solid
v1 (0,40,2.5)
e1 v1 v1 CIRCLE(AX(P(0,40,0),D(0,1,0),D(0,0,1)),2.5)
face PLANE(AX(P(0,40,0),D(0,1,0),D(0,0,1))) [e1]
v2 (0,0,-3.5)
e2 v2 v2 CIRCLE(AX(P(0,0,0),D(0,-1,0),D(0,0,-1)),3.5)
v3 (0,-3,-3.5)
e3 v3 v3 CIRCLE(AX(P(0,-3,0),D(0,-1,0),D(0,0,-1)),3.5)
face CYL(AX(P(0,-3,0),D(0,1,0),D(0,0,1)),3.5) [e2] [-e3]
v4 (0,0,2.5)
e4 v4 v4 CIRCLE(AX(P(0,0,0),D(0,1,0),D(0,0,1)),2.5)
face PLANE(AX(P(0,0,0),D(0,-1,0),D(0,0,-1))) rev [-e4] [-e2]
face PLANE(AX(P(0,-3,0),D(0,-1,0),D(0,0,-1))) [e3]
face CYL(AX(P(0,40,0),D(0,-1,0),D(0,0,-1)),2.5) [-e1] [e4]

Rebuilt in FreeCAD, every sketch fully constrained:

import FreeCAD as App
import Part
import Sketcher
from FreeCAD import Vector

doc = App.newDocument("Part")
params = doc.addObject("Spreadsheet::Sheet", "Params")
for row, (alias, value) in enumerate([
    ("sketch1_diameter", "5 mm"),
    ("pad1_length", "40 mm"),
    ("sketch2_diameter", "7 mm"),
    ("pad2_length", "3 mm"),
], start=1):
    params.set(f"A{row}", alias)
    params.set(f"B{row}", "=" + value)
    params.setAlias(f"B{row}", alias)

body = doc.addObject("PartDesign::Body", "Body")

sketch1 = doc.addObject("Sketcher::SketchObject", "Sketch")
body.addObject(sketch1)
sketch1.AttachmentSupport = (doc.XZ_Plane, [""])
sketch1.MapMode = "FlatFace"
sketch1.addGeometry(Part.Circle(Vector(0, 0, 0), Vector(0, 0, 1), 2.5), False)
sketch1.addConstraint([
    Sketcher.Constraint("Coincident", 0, 3, -1, 1),
    Sketcher.Constraint("Diameter", 0, 5.0),
])
sketch1.setExpression("Constraints[1]", "Params.sketch1_diameter")
pad1 = doc.addObject("PartDesign::Pad", "Pad")
body.addObject(pad1)
pad1.Profile = sketch1
pad1.setExpression("Length", "Params.pad1_length")
pad1.Reversed = True

sketch2 = doc.addObject("Sketcher::SketchObject", "Sketch001")
body.addObject(sketch2)
sketch2.AttachmentSupport = (doc.XZ_Plane, [""])
sketch2.MapMode = "FlatFace"
sketch2.addGeometry(Part.Circle(Vector(0, 0, 0), Vector(0, 0, 1), 3.5), False)
sketch2.addConstraint([
    Sketcher.Constraint("Coincident", 0, 3, -1, 1),
    Sketcher.Constraint("Diameter", 0, 7.0),
])
sketch2.setExpression("Constraints[1]", "Params.sketch2_diameter")
pad2 = doc.addObject("PartDesign::Pad", "Pad001")
body.addObject(pad2)
pad2.Profile = sketch2
pad2.setExpression("Length", "Params.pad2_length")

doc.recompute()
